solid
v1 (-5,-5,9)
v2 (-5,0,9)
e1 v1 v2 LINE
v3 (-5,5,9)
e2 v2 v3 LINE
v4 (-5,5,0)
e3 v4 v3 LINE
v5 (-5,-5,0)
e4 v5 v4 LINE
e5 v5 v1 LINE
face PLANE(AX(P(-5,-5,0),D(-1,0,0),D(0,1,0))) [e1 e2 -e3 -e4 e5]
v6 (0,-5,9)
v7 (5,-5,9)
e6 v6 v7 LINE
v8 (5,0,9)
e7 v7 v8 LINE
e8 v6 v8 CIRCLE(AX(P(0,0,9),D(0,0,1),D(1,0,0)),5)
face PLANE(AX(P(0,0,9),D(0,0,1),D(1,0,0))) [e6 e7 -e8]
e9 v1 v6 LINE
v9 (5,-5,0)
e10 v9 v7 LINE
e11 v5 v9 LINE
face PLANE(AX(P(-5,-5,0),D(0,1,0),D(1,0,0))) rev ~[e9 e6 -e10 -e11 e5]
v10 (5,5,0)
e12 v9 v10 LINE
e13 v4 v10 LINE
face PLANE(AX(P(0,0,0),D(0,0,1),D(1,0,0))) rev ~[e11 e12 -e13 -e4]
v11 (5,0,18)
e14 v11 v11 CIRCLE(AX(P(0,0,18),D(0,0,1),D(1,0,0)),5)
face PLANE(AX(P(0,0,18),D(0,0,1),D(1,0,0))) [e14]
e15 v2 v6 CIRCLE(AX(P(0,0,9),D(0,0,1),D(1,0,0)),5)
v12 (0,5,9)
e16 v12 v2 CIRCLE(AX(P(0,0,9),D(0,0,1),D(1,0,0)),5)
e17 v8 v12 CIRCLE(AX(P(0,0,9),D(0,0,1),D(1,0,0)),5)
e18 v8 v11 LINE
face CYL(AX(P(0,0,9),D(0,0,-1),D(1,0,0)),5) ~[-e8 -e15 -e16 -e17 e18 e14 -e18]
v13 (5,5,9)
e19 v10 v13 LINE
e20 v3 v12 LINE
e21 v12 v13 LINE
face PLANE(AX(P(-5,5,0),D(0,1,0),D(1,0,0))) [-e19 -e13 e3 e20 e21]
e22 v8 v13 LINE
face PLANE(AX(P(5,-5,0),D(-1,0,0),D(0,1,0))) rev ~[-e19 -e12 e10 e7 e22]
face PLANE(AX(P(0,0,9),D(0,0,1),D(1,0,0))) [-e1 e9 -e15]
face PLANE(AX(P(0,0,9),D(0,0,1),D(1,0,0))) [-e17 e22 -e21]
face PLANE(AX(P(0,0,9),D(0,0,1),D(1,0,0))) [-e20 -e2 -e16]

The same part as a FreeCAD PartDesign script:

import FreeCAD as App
import Part
import Sketcher

V = App.Vector
Q = App.Units.Quantity

doc = App.newDocument("Part")
body = doc.addObject("PartDesign::Body", "Body")

# Sketch on XY plane
sketch1 = body.newObject("Sketcher::SketchObject", "Sketch")
sketch1.AttachmentSupport = (doc.getObject("XY_Plane"), [""])
sketch1.MapMode = "FlatFace"
sketch1.addGeometry(Part.LineSegment(V(-5, 5, 0), V(-5, -5, 0)), False)
sketch1.addGeometry(Part.LineSegment(V(-5, -5, 0), V(5, -5, 0)), False)
sketch1.addGeometry(Part.LineSegment(V(5, -5, 0), V(5, 5, 0)), False)
sketch1.addGeometry(Part.LineSegment(V(5, 5, 0), V(-5, 5, 0)), False)
sketch1.addConstraint(Sketcher.Constraint("Coincident", 0, 2, 1, 1))
sketch1.addConstraint(Sketcher.Constraint("Coincident", 1, 2, 2, 1))
sketch1.addConstraint(Sketcher.Constraint("Coincident", 2, 2, 3, 1))
sketch1.addConstraint(Sketcher.Constraint("Coincident", 3, 2, 0, 1))
sketch1.addConstraint(Sketcher.Constraint("Vertical", 0))
sketch1.addConstraint(Sketcher.Constraint("Horizontal", 1))
sketch1.addConstraint(Sketcher.Constraint("Vertical", 2))
sketch1.addConstraint(Sketcher.Constraint("Horizontal", 3))
sketch1.addConstraint(Sketcher.Constraint("Symmetric", 0, 2, 2, 2, -1, 1))
sketch1.addConstraint(Sketcher.Constraint("Equal", 3, 0))
sketch1.addConstraint(Sketcher.Constraint("DistanceX", 1, 1, 1, 2, Q("10 mm")))
pad1 = body.newObject("PartDesign::Pad", "Pad")
pad1.Profile = sketch1
pad1.Length = 9

# Sketch on XY plane
sketch2 = body.newObject("Sketcher::SketchObject", "Sketch001")
sketch2.AttachmentSupport = (doc.getObject("XY_Plane"), [""])
sketch2.MapMode = "FlatFace"
sketch2.AttachmentOffset = App.Placement(V(0, 0, 9), App.Rotation())
sketch2.addGeometry(Part.Circle(V(0, 0, 0), V(0, 0, 1), 5), False)
sketch2.addConstraint(Sketcher.Constraint("Coincident", 0, 3, -1, 1))
sketch2.addConstraint(Sketcher.Constraint("Diameter", 0, Q("10 mm")))
pad2 = body.newObject("PartDesign::Pad", "Pad001")
pad2.Profile = sketch2
pad2.Length = 9

doc.recompute()
